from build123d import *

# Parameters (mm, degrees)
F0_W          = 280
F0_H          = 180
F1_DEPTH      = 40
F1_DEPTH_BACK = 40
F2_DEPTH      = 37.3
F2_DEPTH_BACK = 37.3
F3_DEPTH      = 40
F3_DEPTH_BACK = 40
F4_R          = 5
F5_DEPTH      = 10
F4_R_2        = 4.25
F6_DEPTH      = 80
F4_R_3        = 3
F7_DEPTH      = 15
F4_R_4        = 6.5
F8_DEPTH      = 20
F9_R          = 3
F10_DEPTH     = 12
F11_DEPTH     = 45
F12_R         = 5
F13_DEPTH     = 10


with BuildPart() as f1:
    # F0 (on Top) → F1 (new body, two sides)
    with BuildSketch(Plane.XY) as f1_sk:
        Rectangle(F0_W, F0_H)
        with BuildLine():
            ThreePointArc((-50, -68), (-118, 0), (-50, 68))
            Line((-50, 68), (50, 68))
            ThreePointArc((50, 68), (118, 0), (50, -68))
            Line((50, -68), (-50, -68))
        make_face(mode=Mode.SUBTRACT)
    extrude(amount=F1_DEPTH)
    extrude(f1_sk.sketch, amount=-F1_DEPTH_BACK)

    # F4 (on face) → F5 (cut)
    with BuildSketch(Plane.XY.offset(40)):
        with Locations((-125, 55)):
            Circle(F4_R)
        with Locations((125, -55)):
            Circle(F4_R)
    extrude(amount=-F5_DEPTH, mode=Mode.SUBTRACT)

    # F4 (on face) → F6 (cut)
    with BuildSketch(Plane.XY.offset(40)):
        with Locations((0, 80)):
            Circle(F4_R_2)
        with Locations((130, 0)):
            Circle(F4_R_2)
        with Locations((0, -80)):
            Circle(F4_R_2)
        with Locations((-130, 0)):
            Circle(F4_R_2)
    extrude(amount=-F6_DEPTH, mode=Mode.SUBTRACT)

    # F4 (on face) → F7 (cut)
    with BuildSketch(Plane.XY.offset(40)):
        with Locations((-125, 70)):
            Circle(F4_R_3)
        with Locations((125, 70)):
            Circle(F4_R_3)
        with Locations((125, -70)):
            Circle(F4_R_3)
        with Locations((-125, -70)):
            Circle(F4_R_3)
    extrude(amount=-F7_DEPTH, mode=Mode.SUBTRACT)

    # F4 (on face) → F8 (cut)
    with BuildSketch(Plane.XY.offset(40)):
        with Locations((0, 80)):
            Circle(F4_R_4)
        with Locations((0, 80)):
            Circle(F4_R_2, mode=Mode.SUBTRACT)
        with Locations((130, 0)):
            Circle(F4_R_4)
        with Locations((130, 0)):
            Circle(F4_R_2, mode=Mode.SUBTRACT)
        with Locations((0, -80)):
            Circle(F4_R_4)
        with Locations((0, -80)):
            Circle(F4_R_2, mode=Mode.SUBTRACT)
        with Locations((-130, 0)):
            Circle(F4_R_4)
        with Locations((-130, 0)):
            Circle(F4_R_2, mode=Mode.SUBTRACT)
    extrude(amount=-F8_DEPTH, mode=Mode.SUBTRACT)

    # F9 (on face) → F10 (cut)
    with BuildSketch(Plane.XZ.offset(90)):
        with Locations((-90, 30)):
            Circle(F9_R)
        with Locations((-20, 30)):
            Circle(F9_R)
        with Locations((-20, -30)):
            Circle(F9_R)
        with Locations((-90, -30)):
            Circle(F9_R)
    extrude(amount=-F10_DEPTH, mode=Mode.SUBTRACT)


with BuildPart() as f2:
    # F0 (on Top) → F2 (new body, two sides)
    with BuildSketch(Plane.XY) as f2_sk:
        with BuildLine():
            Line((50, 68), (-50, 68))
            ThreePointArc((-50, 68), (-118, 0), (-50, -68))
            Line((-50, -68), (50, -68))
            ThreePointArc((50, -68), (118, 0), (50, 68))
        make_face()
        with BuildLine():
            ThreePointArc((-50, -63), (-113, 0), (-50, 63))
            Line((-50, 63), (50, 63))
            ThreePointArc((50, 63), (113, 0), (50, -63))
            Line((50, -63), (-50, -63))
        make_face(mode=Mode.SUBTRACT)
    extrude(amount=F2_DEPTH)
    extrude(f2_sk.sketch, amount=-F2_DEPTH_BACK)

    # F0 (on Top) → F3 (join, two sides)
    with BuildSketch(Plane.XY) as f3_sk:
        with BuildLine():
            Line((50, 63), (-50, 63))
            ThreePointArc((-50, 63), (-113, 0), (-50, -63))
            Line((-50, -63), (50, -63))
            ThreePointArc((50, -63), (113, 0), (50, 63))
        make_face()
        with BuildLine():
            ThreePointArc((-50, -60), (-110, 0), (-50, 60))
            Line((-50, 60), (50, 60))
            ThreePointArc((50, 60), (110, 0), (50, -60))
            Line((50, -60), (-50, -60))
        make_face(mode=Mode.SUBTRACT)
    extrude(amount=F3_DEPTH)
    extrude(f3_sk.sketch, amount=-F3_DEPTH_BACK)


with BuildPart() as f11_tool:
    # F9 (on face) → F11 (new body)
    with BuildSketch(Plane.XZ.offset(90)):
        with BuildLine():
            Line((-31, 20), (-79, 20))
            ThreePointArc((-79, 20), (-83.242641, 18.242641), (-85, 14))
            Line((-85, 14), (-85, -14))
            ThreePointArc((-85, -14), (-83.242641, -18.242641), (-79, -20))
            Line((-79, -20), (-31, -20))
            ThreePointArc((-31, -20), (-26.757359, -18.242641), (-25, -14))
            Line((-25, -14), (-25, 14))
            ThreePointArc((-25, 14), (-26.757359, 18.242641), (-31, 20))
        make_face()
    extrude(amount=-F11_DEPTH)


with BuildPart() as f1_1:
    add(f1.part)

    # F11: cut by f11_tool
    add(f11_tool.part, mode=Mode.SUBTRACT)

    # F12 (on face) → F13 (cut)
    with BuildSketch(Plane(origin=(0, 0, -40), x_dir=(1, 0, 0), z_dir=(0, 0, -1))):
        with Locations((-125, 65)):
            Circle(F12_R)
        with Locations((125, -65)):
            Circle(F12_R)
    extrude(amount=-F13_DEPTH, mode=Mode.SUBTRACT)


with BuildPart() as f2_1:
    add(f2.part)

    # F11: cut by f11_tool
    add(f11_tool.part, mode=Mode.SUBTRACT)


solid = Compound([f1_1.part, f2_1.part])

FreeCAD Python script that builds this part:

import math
import FreeCAD as App
import Part
import Sketcher

V = App.Vector

doc = App.newDocument("Part")
params = doc.addObject("Spreadsheet::Sheet", "Params")
for row, (alias, value) in enumerate([
    ("sketch1_radius", "68 mm"),
    ("sketch1_width", "280 mm"),
    ("sketch1_width2", "100 mm"),
    ("sketch1_height", "180 mm"),
    ("pad1_length", "40 mm"),
    ("pad1_length2", "40 mm"),
    ("sketch2_diameter", "10 mm"),
    ("pocket1_length", "10 mm"),
    ("sketch3_diameter", "8.5 mm"),
    ("pocket2_length", "80 mm"),
    ("sketch4_diameter", "6 mm"),
    ("pocket3_length", "15 mm"),
    ("sketch5_diameter", "13 mm"),
    ("sketch5_diameter2", "8.5 mm"),
    ("pocket4_length", "20 mm"),
    ("sketch6_diameter", "6 mm"),
    ("pocket5_length", "12 mm"),
    ("sketch7_radius", "68 mm"),
    ("sketch7_radius2", "63 mm"),
    ("sketch7_width", "100 mm"),
    ("pad2_length", "37.3 mm"),
    ("pad2_length2", "37.3 mm"),
    ("sketch8_radius", "63 mm"),
    ("sketch8_radius2", "60 mm"),
    ("sketch8_width", "100 mm"),
    ("pad3_length", "40 mm"),
    ("pad3_length2", "40 mm"),
    ("sketch9_radius", "5.999999 mm"),
    ("sketch9_width", "48 mm"),
    ("sketch9_height", "28 mm"),
    ("pad4_length", "45 mm"),
    ("sketch10_diameter", "10 mm"),
    ("pocket6_length", "10 mm"),
], start=1):
    params.set(f"A{row}", alias)
    params.set(f"B{row}", "=" + value)
    params.setAlias(f"B{row}", alias)

body = doc.addObject("PartDesign::Body", "Body")

# Sketch on XY plane
sketch1 = body.newObject("Sketcher::SketchObject", "Sketch")
sketch1.AttachmentSupport = (doc.getObject("XY_Plane"), [""])
sketch1.MapMode = "FlatFace"
sketch1.addGeometry([
    Part.LineSegment(V(-140, 90, 0), V(-140, -90, 0)),  # 0
    Part.LineSegment(V(-140, -90, 0), V(140, -90, 0)),  # 1
    Part.LineSegment(V(140, -90, 0), V(140, 90, 0)),  # 2
    Part.LineSegment(V(140, 90, 0), V(-140, 90, 0)),  # 3
    Part.LineSegment(V(50, -68, 0), V(-50, -68, 0)),  # 4
    Part.ArcOfCircle(Part.Circle(V(-50, 0, 0), V(0, 0, 1), 68), math.radians(90), math.radians(270)),  # 5
    Part.LineSegment(V(-50, 68, 0), V(50, 68, 0)),  # 6
    Part.ArcOfCircle(Part.Circle(V(50, 0, 0), V(0, 0, 1), 68), math.radians(-90), math.radians(90)),  # 7
], False)
sketch1.addConstraint([
    Sketcher.Constraint("Coincident", 0, 2, 1, 1),
    Sketcher.Constraint("Coincident", 1, 2, 2, 1),
    Sketcher.Constraint("Coincident", 2, 2, 3, 1),
    Sketcher.Constraint("Coincident", 3, 2, 0, 1),
    Sketcher.Constraint("Tangent", 4, 2, 5, 2),
    Sketcher.Constraint("Tangent", 5, 1, 6, 1),
    Sketcher.Constraint("Tangent", 6, 2, 7, 2),
    Sketcher.Constraint("Tangent", 7, 1, 4, 1),
    Sketcher.Constraint("Vertical", 0),
    Sketcher.Constraint("Horizontal", 1),
    Sketcher.Constraint("Vertical", 2),
    Sketcher.Constraint("Horizontal", 3),
    Sketcher.Constraint("Horizontal", 4),
    Sketcher.Constraint("Horizontal", 6),
    Sketcher.Constraint("Symmetric", 5, 3, 7, 3, -1, 1),
    Sketcher.Constraint("Symmetric", 0, 2, 2, 2, -1, 1),
    Sketcher.Constraint("Radius", 5, 68.0),
    Sketcher.Constraint("DistanceX", 1, 1, 1, 2, 280.0),
    Sketcher.Constraint("DistanceX", 4, 2, 4, 1, 100.0),
    Sketcher.Constraint("DistanceY", 0, 2, 0, 1, 180.0),
])
sketch1.setExpression("Constraints[16]", "Params.sketch1_radius")
sketch1.setExpression("Constraints[17]", "Params.sketch1_width")
sketch1.setExpression("Constraints[18]", "Params.sketch1_width2")
sketch1.setExpression("Constraints[19]", "Params.sketch1_height")
pad1 = body.newObject("PartDesign::Pad", "Pad")
pad1.Profile = sketch1
pad1.Type = "TwoLengths"
pad1.setExpression("Length", "Params.pad1_length")
pad1.setExpression("Length2", "Params.pad1_length2")

# Sketch on XY plane
sketch2 = body.newObject("Sketcher::SketchObject", "Sketch001")
sketch2.AttachmentSupport = (doc.getObject("XY_Plane"), [""])
sketch2.MapMode = "FlatFace"
sketch2.AttachmentOffset = App.Placement(V(0, 0, 40), App.Rotation())
sketch2.addGeometry([
    Part.Circle(V(-125, 55, 0), V(0, 0, 1), 5),
    Part.Circle(V(125, -55, 0), V(0, 0, 1), 5),
], False)
sketch2.addConstraint([
    Sketcher.Constraint("Equal", 0, 1),
    Sketcher.Constraint("Symmetric", 0, 3, 1, 3, -1, 1),
    Sketcher.Constraint("Diameter", 0, 10.0),
    Sketcher.Constraint("DistanceX", 0, 3, -1, 1, 125.0),
    Sketcher.Constraint("DistanceY", -1, 1, 0, 3, 55.0),
])
sketch2.setExpression("Constraints[2]", "Params.sketch2_diameter")
pocket1 = body.newObject("PartDesign::Pocket", "Pocket")
pocket1.Profile = sketch2
pocket1.setExpression("Length", "Params.pocket1_length")

# Sketch on XY plane
sketch3 = body.newObject("Sketcher::SketchObject", "Sketch002")
sketch3.AttachmentSupport = (doc.getObject("XY_Plane"), [""])
sketch3.MapMode = "FlatFace"
sketch3.AttachmentOffset = App.Placement(V(0, 0, 40), App.Rotation())
sketch3.addGeometry([
    Part.Circle(V(0, 80, 0), V(0, 0, 1), 4.25),
    Part.Circle(V(130, 0, 0), V(0, 0, 1), 4.25),
    Part.Circle(V(0, -80, 0), V(0, 0, 1), 4.25),
    Part.Circle(V(-130, 0, 0), V(0, 0, 1), 4.25),
], False)
sketch3.addConstraint([
    Sketcher.Constraint("Equal", 0, 1),
    Sketcher.Constraint("Equal", 1, 2),
    Sketcher.Constraint("Equal", 2, 3),
    Sketcher.Constraint("Symmetric", 0, 3, 2, 3, -1, 1),
    Sketcher.Constraint("Symmetric", 1, 3, 3, 3, -1, 1),
    Sketcher.Constraint("PointOnObject", 0, 3, -2),
    Sketcher.Constraint("PointOnObject", 1, 3, -1),
    Sketcher.Constraint("Diameter", 0, 8.5),
    Sketcher.Constraint("DistanceY", -1, 1, 0, 3, 80.0),
    Sketcher.Constraint("DistanceX", -1, 1, 1, 3, 130.0),
])
sketch3.setExpression("Constraints[7]", "Params.sketch3_diameter")
pocket2 = body.newObject("PartDesign::Pocket", "Pocket001")
pocket2.Profile = sketch3
pocket2.setExpression("Length", "Params.pocket2_length")

# Sketch on XY plane
sketch4 = body.newObject("Sketcher::SketchObject", "Sketch003")
sketch4.AttachmentSupport = (doc.getObject("XY_Plane"), [""])
sketch4.MapMode = "FlatFace"
sketch4.AttachmentOffset = App.Placement(V(0, 0, 40), App.Rotation())
sketch4.addGeometry([
    Part.Circle(V(-125, 70, 0), V(0, 0, 1), 3),
    Part.Circle(V(125, 70, 0), V(0, 0, 1), 3),
    Part.Circle(V(125, -70, 0), V(0, 0, 1), 3),
    Part.Circle(V(-125, -70, 0), V(0, 0, 1), 3),
], False)
sketch4.addConstraint([
    Sketcher.Constraint("Equal", 0, 1),
    Sketcher.Constraint("Equal", 1, 2),
    Sketcher.Constraint("Equal", 2, 3),
    Sketcher.Constraint("Symmetric", 0, 3, 2, 3, -1, 1),
    Sketcher.Constraint("Symmetric", 1, 3, 3, 3, -1, 1),
    Sketcher.Constraint("Symmetric", 0, 3, 1, 3, -2),
    Sketcher.Constraint("Diameter", 0, 6.0),
    Sketcher.Constraint("DistanceX", 0, 3, -1, 1, 125.0),
    Sketcher.Constraint("DistanceY", -1, 1, 0, 3, 70.0),
])
sketch4.setExpression("Constraints[6]", "Params.sketch4_diameter")
pocket3 = body.newObject("PartDesign::Pocket", "Pocket002")
pocket3.Profile = sketch4
pocket3.setExpression("Length", "Params.pocket3_length")

# Sketch on XY plane
sketch5 = body.newObject("Sketcher::SketchObject", "Sketch004")
sketch5.AttachmentSupport = (doc.getObject("XY_Plane"), [""])
sketch5.MapMode = "FlatFace"
sketch5.AttachmentOffset = App.Placement(V(0, 0, 40), App.Rotation())
sketch5.addGeometry([
    Part.Circle(V(0, 80, 0), V(0, 0, 1), 6.5),  # 0
    Part.Circle(V(0, 80, 0), V(0, 0, 1), 4.25),  # 1
    Part.Circle(V(130, 0, 0), V(0, 0, 1), 6.5),  # 2
    Part.Circle(V(130, 0, 0), V(0, 0, 1), 4.25),  # 3
    Part.Circle(V(0, -80, 0), V(0, 0, 1), 6.5),  # 4
    Part.Circle(V(0, -80, 0), V(0, 0, 1), 4.25),  # 5
    Part.Circle(V(-130, 0, 0), V(0, 0, 1), 6.5),  # 6
    Part.Circle(V(-130, 0, 0), V(0, 0, 1), 4.25),  # 7
], False)
sketch5.addConstraint([
    Sketcher.Constraint("Coincident", 1, 3, 0, 3),
    Sketcher.Constraint("Coincident", 3, 3, 2, 3),
    Sketcher.Constraint("Coincident", 5, 3, 4, 3),
    Sketcher.Constraint("Coincident", 7, 3, 6, 3),
    Sketcher.Constraint("Equal", 0, 2),
    Sketcher.Constraint("Equal", 1, 3),
    Sketcher.Constraint("Equal", 2, 4),
    Sketcher.Constraint("Equal", 3, 5),
    Sketcher.Constraint("Equal", 4, 6),
    Sketcher.Constraint("Equal", 5, 7),
    Sketcher.Constraint("Symmetric", 0, 3, 4, 3, -1, 1),
    Sketcher.Constraint("Symmetric", 2, 3, 6, 3, -1, 1),
    Sketcher.Constraint("PointOnObject", 0, 3, -2),
    Sketcher.Constraint("PointOnObject", 2, 3, -1),
    Sketcher.Constraint("Diameter", 0, 13.0),
    Sketcher.Constraint("Diameter", 1, 8.5),
    Sketcher.Constraint("DistanceY", -1, 1, 0, 3, 80.0),
    Sketcher.Constraint("DistanceX", -1, 1, 2, 3, 130.0),
])
sketch5.setExpression("Constraints[14]", "Params.sketch5_diameter")
sketch5.setExpression("Constraints[15]", "Params.sketch5_diameter2")
pocket4 = body.newObject("PartDesign::Pocket", "Pocket003")
pocket4.Profile = sketch5
pocket4.setExpression("Length", "Params.pocket4_length")

# Sketch on XZ plane
sketch6 = body.newObject("Sketcher::SketchObject", "Sketch005")
sketch6.AttachmentSupport = (doc.getObject("XZ_Plane"), [""])
sketch6.MapMode = "FlatFace"
sketch6.AttachmentOffset = App.Placement(V(0, 0, 90), App.Rotation())
sketch6.addGeometry([
    Part.Circle(V(-90, 30, 0), V(0, 0, 1), 3),
    Part.Circle(V(-20, 30, 0), V(0, 0, 1), 3),
    Part.Circle(V(-20, -30, 0), V(0, 0, 1), 3),
    Part.Circle(V(-90, -30, 0), V(0, 0, 1), 3),
], False)
sketch6.addConstraint([
    Sketcher.Constraint("Equal", 0, 1),
    Sketcher.Constraint("Equal", 1, 2),
    Sketcher.Constraint("Equal", 2, 3),
    Sketcher.Constraint("Symmetric", 1, 3, 2, 3, -1),
    Sketcher.Constraint("Symmetric", 0, 3, 3, 3, -1),
    Sketcher.Constraint("Horizontal", 0, 3, 1, 3),
    Sketcher.Constraint("Diameter", 0, 6.0),
    Sketcher.Constraint("DistanceX", 0, 3, -1, 1, 90.0),
    Sketcher.Constraint("DistanceY", -1, 1, 0, 3, 30.0),
    Sketcher.Constraint("DistanceX", 1, 3, -1, 1, 20.0),
])
sketch6.setExpression("Constraints[6]", "Params.sketch6_diameter")
pocket5 = body.newObject("PartDesign::Pocket", "Pocket004")
pocket5.Profile = sketch6
pocket5.setExpression("Length", "Params.pocket5_length")
body2 = doc.addObject("PartDesign::Body", "Body001")

# Sketch on XY plane
sketch7 = body2.newObject("Sketcher::SketchObject", "Sketch006")
sketch7.AttachmentSupport = (doc.getObject("XY_Plane001"), [""])
sketch7.MapMode = "FlatFace"
sketch7.addGeometry([
    Part.LineSegment(V(50, 68, 0), V(-50, 68, 0)),  # 0
    Part.ArcOfCircle(Part.Circle(V(-50, 0, 0), V(0, 0, 1), 68), math.radians(90), math.radians(270)),  # 1
    Part.LineSegment(V(-50, -68, 0), V(50, -68, 0)),  # 2
    Part.ArcOfCircle(Part.Circle(V(50, 0, 0), V(0, 0, 1), 68), math.radians(-90), math.radians(90)),  # 3
    Part.LineSegment(V(50, -63, 0), V(-50, -63, 0)),  # 4
    Part.ArcOfCircle(Part.Circle(V(-50, 0, 0), V(0, 0, 1), 63), math.radians(90), math.radians(270)),  # 5
    Part.LineSegment(V(-50, 63, 0), V(50, 63, 0)),  # 6
    Part.ArcOfCircle(Part.Circle(V(50, 0, 0), V(0, 0, 1), 63), math.radians(-90), math.radians(90)),  # 7
], False)
sketch7.addConstraint([
    Sketcher.Constraint("Tangent", 0, 2, 1, 1),
    Sketcher.Constraint("Tangent", 1, 2, 2, 1),
    Sketcher.Constraint("Tangent", 2, 2, 3, 1),
    Sketcher.Constraint("Tangent", 3, 2, 0, 1),
    Sketcher.Constraint("Tangent", 4, 2, 5, 2),
    Sketcher.Constraint("Tangent", 5, 1, 6, 1),
    Sketcher.Constraint("Tangent", 6, 2, 7, 2),
    Sketcher.Constraint("Tangent", 7, 1, 4, 1),
    Sketcher.Constraint("Horizontal", 0),
    Sketcher.Constraint("Horizontal", 2),
    Sketcher.Constraint("Horizontal", 4),
    Sketcher.Constraint("Horizontal", 6),
    Sketcher.Constraint("Coincident", 5, 3, 1, 3),
    Sketcher.Constraint("Symmetric", 1, 3, 3, 3, -1, 1),
    Sketcher.Constraint("Vertical", 7, 3, 2, 2),
    Sketcher.Constraint("Radius", 1, 68.0),
    Sketcher.Constraint("Radius", 5, 63.0),
    Sketcher.Constraint("DistanceX", 0, 2, 0, 1, 100.0),
])
sketch7.setExpression("Constraints[15]", "Params.sketch7_radius")
sketch7.setExpression("Constraints[16]", "Params.sketch7_radius2")
sketch7.setExpression("Constraints[17]", "Params.sketch7_width")
pad2 = body2.newObject("PartDesign::Pad", "Pad001")
pad2.Profile = sketch7
pad2.Type = "TwoLengths"
pad2.setExpression("Length", "Params.pad2_length")
pad2.setExpression("Length2", "Params.pad2_length2")

# Sketch on XY plane
sketch8 = body2.newObject("Sketcher::SketchObject", "Sketch007")
sketch8.AttachmentSupport = (doc.getObject("XY_Plane001"), [""])
sketch8.MapMode = "FlatFace"
sketch8.addGeometry([
    Part.LineSegment(V(50, 63, 0), V(-50, 63, 0)),  # 0
    Part.ArcOfCircle(Part.Circle(V(-50, 0, 0), V(0, 0, 1), 63), math.radians(90), math.radians(270)),  # 1
    Part.LineSegment(V(-50, -63, 0), V(50, -63, 0)),  # 2
    Part.ArcOfCircle(Part.Circle(V(50, 0, 0), V(0, 0, 1), 63), math.radians(-90), math.radians(90)),  # 3
    Part.LineSegment(V(50, -60, 0), V(-50, -60, 0)),  # 4
    Part.ArcOfCircle(Part.Circle(V(-50, 0, 0), V(0, 0, 1), 60), math.radians(90), math.radians(270)),  # 5
    Part.LineSegment(V(-50, 60, 0), V(50, 60, 0)),  # 6
    Part.ArcOfCircle(Part.Circle(V(50, 0, 0), V(0, 0, 1), 60), math.radians(-90), math.radians(90)),  # 7
], False)
sketch8.addConstraint([
    Sketcher.Constraint("Tangent", 0, 2, 1, 1),
    Sketcher.Constraint("Tangent", 1, 2, 2, 1),
    Sketcher.Constraint("Tangent", 2, 2, 3, 1),
    Sketcher.Constraint("Tangent", 3, 2, 0, 1),
    Sketcher.Constraint("Tangent", 4, 2, 5, 2),
    Sketcher.Constraint("Tangent", 5, 1, 6, 1),
    Sketcher.Constraint("Tangent", 6, 2, 7, 2),
    Sketcher.Constraint("Tangent", 7, 1, 4, 1),
    Sketcher.Constraint("Horizontal", 0),
    Sketcher.Constraint("Horizontal", 2),
    Sketcher.Constraint("Horizontal", 4),
    Sketcher.Constraint("Horizontal", 6),
    Sketcher.Constraint("Coincident", 5, 3, 1, 3),
    Sketcher.Constraint("Symmetric", 1, 3, 3, 3, -1, 1),
    Sketcher.Constraint("Vertical", 7, 3, 2, 2),
    Sketcher.Constraint("Radius", 1, 63.0),
    Sketcher.Constraint("Radius", 5, 60.0),
    Sketcher.Constraint("DistanceX", 0, 2, 0, 1, 100.0),
])
sketch8.setExpression("Constraints[15]", "Params.sketch8_radius")
sketch8.setExpression("Constraints[16]", "Params.sketch8_radius2")
sketch8.setExpression("Constraints[17]", "Params.sketch8_width")
pad3 = body2.newObject("PartDesign::Pad", "Pad002")
pad3.Profile = sketch8
pad3.Type = "TwoLengths"
pad3.setExpression("Length", "Params.pad3_length")
pad3.setExpression("Length2", "Params.pad3_length2")
body3 = doc.addObject("PartDesign::Body", "Body002")

# Sketch on XZ plane
sketch9 = body3.newObject("Sketcher::SketchObject", "Sketch008")
sketch9.AttachmentSupport = (doc.getObject("XZ_Plane002"), [""])
sketch9.MapMode = "FlatFace"
sketch9.AttachmentOffset = App.Placement(V(0, 0, 90), App.Rotation())
sketch9.addGeometry([
    Part.LineSegment(V(-31, 20, 0), V(-79, 20, 0)),  # 0
    Part.ArcOfCircle(Part.Circle(V(-79.000001, 14.000001, 0), V(0, 0, 1), 5.999999), math.radians(89.99999), math.radians(180.00001)),  # 1
    Part.LineSegment(V(-85, 14, 0), V(-85, -14, 0)),  # 2
    Part.ArcOfCircle(Part.Circle(V(-79.000001, -14.000001, 0), V(0, 0, 1), 5.999999), math.radians(179.99999), math.radians(270.00001)),  # 3
    Part.LineSegment(V(-79, -20, 0), V(-31, -20, 0)),  # 4
    Part.ArcOfCircle(Part.Circle(V(-30.999999, -14.000001, 0), V(0, 0, 1), 5.999999), math.radians(-90.00001), math.radians(0.00001)),  # 5
    Part.LineSegment(V(-25, -14, 0), V(-25, 14, 0)),  # 6
    Part.ArcOfCircle(Part.Circle(V(-30.999999, 14.000001, 0), V(0, 0, 1), 5.999999), math.radians(-0.00001), math.radians(90.00001)),  # 7
], False)
sketch9.addConstraint([
    Sketcher.Constraint("Tangent", 0, 2, 1, 1),
    Sketcher.Constraint("Tangent", 1, 2, 2, 1),
    Sketcher.Constraint("Tangent", 2, 2, 3, 1),
    Sketcher.Constraint("Tangent", 3, 2, 4, 1),
    Sketcher.Constraint("Tangent", 4, 2, 5, 1),
    Sketcher.Constraint("Tangent", 5, 2, 6, 1),
    Sketcher.Constraint("Tangent", 6, 2, 7, 1),
    Sketcher.Constraint("Tangent", 7, 2, 0, 1),
    Sketcher.Constraint("Horizontal", 0),
    Sketcher.Constraint("Vertical", 2),
    Sketcher.Constraint("Horizontal", 4),
    Sketcher.Constraint("Vertical", 6),
    Sketcher.Constraint("Equal", 1, 3),
    Sketcher.Constraint("Equal", 3, 5),
    Sketcher.Constraint("Equal", 5, 7),
    Sketcher.Constraint("Radius", 1, 5.999999),
    Sketcher.Constraint("DistanceX", 0, 2, 0, 1, 48.0),
    Sketcher.Constraint("DistanceY", 2, 2, 2, 1, 28.0),
    Sketcher.Constraint("DistanceX", 1, 3, -1, 1, 79.000001),
    Sketcher.Constraint("DistanceY", -1, 1, 1, 3, 14.000001),
])
sketch9.setExpression("Constraints[15]", "Params.sketch9_radius")
sketch9.setExpression("Constraints[16]", "Params.sketch9_width")
sketch9.setExpression("Constraints[17]", "Params.sketch9_height")
pad4 = body3.newObject("PartDesign::Pad", "Pad003")
pad4.Profile = sketch9
pad4.setExpression("Length", "Params.pad4_length")
pad4.Reversed = True
doc.recompute()

body4 = doc.addObject("PartDesign::Body", "Body003")
body4.BaseFeature = body3
boolean = body.newObject("PartDesign::Boolean", "Boolean")
boolean.Type = "Cut"
boolean.addObjects([body4])
doc.recompute()

# Sketch on XY plane
sketch10 = body.newObject("Sketcher::SketchObject", "Sketch009")
sketch10.AttachmentSupport = (doc.getObject("XY_Plane"), [""])
sketch10.MapMode = "FlatFace"
sketch10.AttachmentOffset = App.Placement(V(0, 0, -40), App.Rotation())
sketch10.addGeometry([
    Part.Circle(V(-125, -65, 0), V(0, 0, 1), 5),
    Part.Circle(V(125, 65, 0), V(0, 0, 1), 5),
], False)
sketch10.addConstraint([
    Sketcher.Constraint("Equal", 0, 1),
    Sketcher.Constraint("Symmetric", 0, 3, 1, 3, -1, 1),
    Sketcher.Constraint("Diameter", 0, 10.0),
    Sketcher.Constraint("DistanceX", 0, 3, -1, 1, 125.0),
    Sketcher.Constraint("DistanceY", 0, 3, -1, 1, 65.0),
])
sketch10.setExpression("Constraints[2]", "Params.sketch10_diameter")
pocket6 = body.newObject("PartDesign::Pocket", "Pocket005")
pocket6.Profile = sketch10
pocket6.setExpression("Length", "Params.pocket6_length")
pocket6.Reversed = True
doc.recompute()

boolean2 = body2.newObject("PartDesign::Boolean", "Boolean001")
boolean2.Type = "Cut"
boolean2.addObjects([body3])

doc.recompute()
